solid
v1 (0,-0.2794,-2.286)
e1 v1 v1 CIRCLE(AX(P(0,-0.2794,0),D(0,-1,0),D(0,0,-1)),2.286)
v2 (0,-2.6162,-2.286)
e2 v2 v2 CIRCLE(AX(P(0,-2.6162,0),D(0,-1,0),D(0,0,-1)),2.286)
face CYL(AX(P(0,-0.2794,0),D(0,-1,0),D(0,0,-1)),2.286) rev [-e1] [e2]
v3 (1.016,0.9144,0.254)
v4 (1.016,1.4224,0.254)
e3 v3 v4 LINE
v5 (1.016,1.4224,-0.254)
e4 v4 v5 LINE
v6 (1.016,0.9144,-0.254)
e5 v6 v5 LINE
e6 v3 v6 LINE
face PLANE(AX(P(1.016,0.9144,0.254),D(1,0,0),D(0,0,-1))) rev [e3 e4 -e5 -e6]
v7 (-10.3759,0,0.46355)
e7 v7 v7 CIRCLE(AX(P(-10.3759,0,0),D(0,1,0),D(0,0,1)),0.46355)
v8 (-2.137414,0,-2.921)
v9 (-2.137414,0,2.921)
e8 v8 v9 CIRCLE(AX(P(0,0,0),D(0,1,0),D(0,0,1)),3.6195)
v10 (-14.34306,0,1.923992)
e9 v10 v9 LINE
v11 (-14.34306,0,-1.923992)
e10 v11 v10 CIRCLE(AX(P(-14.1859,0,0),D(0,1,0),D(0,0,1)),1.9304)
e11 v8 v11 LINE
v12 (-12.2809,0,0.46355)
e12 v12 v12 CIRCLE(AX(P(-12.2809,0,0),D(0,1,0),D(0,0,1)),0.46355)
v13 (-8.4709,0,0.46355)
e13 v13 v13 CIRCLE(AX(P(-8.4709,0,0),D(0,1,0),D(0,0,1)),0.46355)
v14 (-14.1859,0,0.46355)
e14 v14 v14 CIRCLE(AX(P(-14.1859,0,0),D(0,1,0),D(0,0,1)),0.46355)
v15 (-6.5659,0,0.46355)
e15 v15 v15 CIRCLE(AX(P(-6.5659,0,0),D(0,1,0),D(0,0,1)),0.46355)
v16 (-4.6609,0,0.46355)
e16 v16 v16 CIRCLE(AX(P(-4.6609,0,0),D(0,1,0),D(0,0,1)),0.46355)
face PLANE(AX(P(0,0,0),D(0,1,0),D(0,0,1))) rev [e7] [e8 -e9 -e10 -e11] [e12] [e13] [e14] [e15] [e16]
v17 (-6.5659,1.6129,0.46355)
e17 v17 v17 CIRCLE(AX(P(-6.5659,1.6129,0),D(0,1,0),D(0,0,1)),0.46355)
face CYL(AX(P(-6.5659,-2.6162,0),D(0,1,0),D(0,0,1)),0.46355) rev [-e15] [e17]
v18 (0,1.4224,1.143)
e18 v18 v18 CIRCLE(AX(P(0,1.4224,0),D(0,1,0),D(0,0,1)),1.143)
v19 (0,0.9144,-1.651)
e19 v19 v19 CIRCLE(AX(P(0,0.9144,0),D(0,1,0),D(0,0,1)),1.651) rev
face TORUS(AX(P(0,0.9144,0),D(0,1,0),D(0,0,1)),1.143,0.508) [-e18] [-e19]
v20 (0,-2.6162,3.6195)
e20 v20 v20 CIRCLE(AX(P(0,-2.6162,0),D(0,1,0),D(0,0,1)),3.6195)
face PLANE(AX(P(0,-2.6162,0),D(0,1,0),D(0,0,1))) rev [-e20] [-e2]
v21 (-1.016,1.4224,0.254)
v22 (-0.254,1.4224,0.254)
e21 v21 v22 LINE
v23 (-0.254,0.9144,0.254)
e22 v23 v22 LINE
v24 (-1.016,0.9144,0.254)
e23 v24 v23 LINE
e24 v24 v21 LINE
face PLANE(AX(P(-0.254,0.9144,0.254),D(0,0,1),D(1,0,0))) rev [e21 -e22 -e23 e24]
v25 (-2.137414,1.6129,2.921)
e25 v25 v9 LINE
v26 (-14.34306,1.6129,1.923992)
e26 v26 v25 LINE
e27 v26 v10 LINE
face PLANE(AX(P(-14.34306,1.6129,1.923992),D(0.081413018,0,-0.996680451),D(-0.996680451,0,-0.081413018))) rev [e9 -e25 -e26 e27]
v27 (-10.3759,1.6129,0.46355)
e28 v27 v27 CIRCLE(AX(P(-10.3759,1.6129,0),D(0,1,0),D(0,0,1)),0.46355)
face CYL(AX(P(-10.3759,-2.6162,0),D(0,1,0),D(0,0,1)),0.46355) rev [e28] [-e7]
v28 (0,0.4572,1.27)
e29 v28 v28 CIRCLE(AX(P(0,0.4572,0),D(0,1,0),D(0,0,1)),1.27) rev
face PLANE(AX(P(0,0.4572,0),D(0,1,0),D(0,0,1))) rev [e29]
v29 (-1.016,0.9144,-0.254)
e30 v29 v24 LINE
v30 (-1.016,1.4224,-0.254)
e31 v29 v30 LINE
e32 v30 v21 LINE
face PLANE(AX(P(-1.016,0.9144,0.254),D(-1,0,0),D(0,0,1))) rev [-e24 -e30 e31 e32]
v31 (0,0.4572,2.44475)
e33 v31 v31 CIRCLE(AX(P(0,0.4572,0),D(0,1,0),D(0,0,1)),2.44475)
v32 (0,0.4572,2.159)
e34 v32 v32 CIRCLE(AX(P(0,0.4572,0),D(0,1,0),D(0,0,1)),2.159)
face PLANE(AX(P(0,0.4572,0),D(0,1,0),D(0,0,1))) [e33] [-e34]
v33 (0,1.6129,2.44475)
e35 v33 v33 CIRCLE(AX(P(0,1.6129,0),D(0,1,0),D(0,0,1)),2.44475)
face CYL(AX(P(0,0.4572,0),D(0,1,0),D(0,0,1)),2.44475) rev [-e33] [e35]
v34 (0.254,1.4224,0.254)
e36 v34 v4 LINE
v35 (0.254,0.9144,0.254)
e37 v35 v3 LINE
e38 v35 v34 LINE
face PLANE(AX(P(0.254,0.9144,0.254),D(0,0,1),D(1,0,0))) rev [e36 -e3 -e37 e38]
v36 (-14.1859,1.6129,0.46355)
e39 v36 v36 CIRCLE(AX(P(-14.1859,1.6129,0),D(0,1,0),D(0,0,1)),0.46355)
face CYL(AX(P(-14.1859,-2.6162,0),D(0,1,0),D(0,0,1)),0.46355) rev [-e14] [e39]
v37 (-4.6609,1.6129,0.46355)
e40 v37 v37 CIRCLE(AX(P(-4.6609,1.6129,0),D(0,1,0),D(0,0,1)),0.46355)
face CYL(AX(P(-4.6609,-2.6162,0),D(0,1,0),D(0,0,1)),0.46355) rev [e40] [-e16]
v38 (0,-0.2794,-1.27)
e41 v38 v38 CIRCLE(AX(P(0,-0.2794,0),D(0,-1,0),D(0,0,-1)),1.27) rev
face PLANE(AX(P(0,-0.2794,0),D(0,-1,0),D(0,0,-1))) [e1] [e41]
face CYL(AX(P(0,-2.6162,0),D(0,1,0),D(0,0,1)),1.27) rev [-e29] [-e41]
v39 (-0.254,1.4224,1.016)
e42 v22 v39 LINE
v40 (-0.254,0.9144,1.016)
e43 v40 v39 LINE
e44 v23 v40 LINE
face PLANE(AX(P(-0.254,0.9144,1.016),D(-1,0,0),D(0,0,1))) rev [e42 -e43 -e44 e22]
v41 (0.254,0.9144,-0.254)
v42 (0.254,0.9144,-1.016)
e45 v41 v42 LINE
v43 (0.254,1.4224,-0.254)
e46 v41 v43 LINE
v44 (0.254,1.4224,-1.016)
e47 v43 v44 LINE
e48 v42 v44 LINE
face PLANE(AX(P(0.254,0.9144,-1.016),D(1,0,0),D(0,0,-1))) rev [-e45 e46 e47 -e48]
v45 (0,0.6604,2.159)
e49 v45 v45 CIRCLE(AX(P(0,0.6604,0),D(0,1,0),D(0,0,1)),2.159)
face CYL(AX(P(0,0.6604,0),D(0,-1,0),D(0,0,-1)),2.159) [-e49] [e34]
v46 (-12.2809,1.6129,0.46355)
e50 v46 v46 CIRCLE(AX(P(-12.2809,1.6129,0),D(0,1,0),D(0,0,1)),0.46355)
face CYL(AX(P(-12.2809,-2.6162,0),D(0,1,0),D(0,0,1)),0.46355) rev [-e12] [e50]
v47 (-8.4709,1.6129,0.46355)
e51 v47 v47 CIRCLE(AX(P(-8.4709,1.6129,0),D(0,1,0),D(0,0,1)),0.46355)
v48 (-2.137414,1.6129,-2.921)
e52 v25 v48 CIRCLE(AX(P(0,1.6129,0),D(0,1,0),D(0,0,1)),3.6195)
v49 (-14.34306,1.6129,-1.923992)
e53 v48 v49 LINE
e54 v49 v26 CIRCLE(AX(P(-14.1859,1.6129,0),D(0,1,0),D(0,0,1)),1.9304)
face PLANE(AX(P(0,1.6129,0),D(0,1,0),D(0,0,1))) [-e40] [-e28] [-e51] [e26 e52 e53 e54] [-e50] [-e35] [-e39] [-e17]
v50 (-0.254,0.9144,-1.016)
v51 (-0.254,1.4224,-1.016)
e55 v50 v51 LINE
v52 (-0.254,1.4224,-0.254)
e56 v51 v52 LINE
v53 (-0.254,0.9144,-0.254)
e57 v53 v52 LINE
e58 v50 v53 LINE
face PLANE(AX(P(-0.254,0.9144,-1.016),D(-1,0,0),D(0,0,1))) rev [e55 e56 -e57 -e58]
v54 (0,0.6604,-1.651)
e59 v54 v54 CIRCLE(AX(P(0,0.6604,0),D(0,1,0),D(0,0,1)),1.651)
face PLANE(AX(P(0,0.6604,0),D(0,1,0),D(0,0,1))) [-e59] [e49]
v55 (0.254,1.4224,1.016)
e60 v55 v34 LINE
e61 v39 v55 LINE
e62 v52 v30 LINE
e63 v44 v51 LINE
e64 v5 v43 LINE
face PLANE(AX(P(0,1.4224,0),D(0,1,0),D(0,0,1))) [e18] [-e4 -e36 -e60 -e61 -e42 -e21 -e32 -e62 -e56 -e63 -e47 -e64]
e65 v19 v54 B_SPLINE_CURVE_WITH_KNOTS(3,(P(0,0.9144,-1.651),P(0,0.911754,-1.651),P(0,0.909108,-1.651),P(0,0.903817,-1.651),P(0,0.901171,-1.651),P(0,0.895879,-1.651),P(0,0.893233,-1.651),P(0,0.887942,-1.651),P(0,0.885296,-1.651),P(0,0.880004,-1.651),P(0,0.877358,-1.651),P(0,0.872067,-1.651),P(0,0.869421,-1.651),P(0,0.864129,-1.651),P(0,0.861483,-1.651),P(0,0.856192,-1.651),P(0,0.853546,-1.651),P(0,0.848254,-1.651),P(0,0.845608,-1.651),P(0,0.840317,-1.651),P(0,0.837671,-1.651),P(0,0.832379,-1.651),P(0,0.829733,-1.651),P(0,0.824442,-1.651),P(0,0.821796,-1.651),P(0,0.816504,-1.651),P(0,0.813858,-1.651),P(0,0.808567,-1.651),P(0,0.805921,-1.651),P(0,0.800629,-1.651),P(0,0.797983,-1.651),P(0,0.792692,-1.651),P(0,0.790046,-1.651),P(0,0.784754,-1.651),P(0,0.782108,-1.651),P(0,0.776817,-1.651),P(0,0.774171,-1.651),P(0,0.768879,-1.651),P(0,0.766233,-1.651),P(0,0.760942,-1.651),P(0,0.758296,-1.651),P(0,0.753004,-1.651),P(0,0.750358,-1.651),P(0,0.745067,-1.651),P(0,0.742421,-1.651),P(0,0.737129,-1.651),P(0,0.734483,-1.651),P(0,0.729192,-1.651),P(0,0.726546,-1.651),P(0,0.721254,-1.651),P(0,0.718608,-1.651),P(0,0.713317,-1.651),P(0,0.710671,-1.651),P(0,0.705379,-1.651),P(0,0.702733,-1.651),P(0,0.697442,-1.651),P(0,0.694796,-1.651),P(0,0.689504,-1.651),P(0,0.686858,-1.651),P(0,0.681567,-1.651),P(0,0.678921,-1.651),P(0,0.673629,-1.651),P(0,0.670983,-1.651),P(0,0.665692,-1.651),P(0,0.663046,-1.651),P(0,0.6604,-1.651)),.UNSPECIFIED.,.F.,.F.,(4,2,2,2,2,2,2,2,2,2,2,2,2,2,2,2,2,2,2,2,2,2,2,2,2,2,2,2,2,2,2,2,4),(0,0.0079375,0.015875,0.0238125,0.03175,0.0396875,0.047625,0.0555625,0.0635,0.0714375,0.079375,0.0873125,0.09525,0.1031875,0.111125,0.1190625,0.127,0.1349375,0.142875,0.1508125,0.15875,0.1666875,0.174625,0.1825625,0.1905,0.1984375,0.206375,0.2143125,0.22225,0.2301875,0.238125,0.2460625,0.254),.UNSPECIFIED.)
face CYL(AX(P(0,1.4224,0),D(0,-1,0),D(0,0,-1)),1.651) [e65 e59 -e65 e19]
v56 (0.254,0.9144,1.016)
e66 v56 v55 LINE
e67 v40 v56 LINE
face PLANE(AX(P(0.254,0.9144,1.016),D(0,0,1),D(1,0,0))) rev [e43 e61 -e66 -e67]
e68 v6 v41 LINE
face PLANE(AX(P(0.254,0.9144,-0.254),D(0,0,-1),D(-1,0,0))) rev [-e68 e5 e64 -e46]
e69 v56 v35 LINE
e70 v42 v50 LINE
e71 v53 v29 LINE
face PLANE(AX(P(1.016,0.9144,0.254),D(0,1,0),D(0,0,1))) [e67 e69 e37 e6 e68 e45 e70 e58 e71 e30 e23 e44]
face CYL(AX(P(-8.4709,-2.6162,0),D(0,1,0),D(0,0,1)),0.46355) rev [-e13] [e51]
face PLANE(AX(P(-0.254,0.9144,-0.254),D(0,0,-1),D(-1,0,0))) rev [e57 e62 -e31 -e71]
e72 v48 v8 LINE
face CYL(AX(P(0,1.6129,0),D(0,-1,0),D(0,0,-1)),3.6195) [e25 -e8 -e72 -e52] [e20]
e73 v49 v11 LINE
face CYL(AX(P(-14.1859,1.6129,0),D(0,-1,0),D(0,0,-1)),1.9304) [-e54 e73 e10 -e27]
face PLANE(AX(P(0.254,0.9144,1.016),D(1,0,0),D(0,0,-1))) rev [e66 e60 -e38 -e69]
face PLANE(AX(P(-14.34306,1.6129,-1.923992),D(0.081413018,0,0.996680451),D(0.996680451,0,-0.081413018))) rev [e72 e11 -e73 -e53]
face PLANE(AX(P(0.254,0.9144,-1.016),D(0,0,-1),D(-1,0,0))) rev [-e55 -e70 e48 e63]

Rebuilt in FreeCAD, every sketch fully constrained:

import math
import FreeCAD as App
import Part
import Sketcher

V = App.Vector
Q = App.Units.Quantity


def edges_at(feature, points):
    """Names of the edges that pass closest to the given points."""
    edges = feature.Shape.Edges
    near = lambda p: min(range(len(edges)), key=lambda i: edges[i].distToShape(Part.Vertex(*p))[0])
    return sorted({f"Edge{near(p) + 1}" for p in points})


def add_polygon(sketch, points):
    """Adds a closed chain of lines whose ends are joined by coincident constraints."""
    first, n = sketch.GeometryCount, len(points)
    for a, b in zip(points, points[1:] + points[:1]):
        sketch.addGeometry(Part.LineSegment(App.Vector(*a, 0), App.Vector(*b, 0)), False)
    for i in range(n):
        sketch.addConstraint(Sketcher.Constraint("Coincident", first + i, 2, first + (i + 1) % n, 1))

doc = App.newDocument("Part")
body = doc.addObject("PartDesign::Body", "Body")

sketch1 = body.newObject("Sketcher::SketchObject", "Sketch")
sketch1.AttachmentSupport = (doc.getObject("XZ_Plane"), [""])
sketch1.MapMode = "FlatFace"
sketch1.addGeometry([
    Part.LineSegment(V(-2.1, -2.9, 0), V(-14.3, -1.9, 0)),
    Part.ArcOfCircle(Part.Circle(V(-14.2, 0, 0), V(0, 0, 1), 1.9), math.radians(95), math.radians(265)),
    Part.LineSegment(V(-14.3, 1.9, 0), V(-2.1, 2.9, 0)),
    Part.ArcOfCircle(Part.Circle(V(0, 0, 0), V(0, 0, 1), 3.6), math.radians(-126), math.radians(126)),
], False)
sketch1.addConstraint([
    Sketcher.Constraint("Tangent", 0, 2, 1, 2),
    Sketcher.Constraint("Tangent", 1, 1, 2, 1),
    Sketcher.Constraint("Coincident", 2, 2, 3, 2),
    Sketcher.Constraint("Coincident", 3, 1, 0, 1),
    Sketcher.Constraint("Coincident", 3, 3, -1, 1),
    Sketcher.Constraint("Symmetric", 0, 2, 1, 1, -1),
    Sketcher.Constraint("Radius", 1, Q("0.076 in")),
    Sketcher.Constraint("Radius", 3, Q("0.1425 in")),
    Sketcher.Constraint("DistanceY", 3, 1, 2, 2, Q("0.23 in")),
    Sketcher.Constraint("DistanceX", 1, 3, -1, 1, Q("0.5585 in")),
])
pad1 = body.newObject("PartDesign::Pad", "Pad")
pad1.Profile = sketch1
pad1.Length = Q("0.0635 in")
pad1.Reversed = True

sketch2 = body.newObject("Sketcher::SketchObject", "Sketch001")
sketch2.AttachmentSupport = (doc.getObject("XZ_Plane"), [""])
sketch2.MapMode = "FlatFace"
sketch2.AttachmentOffset = App.Placement(V(0, 0, -0.0635 * 25.4), App.Rotation())
sketch2.addGeometry(Part.Circle(V(0, 0, 0), V(0, 0, 1), 3.6), False)
sketch2.addConstraint([
    Sketcher.Constraint("Coincident", 0, 3, -1, 1),
    Sketcher.Constraint("Diameter", 0, Q("0.285 in")),
])
pad2 = body.newObject("PartDesign::Pad", "Pad001")
pad2.Profile = sketch2
pad2.Length = Q("0.1665 in")

sketch3 = body.newObject("Sketcher::SketchObject", "Sketch002")
sketch3.AttachmentSupport = (doc.getObject("XZ_Plane"), [""])
sketch3.MapMode = "FlatFace"
sketch3.AttachmentOffset = App.Placement(V(0, 0, -0.0635 * 25.4), App.Rotation())
sketch3.addGeometry([
    Part.Circle(V(-14.19, 0, 0), V(0, 0, 1), 0.46),
    Part.Circle(V(0, 0, 0), V(0, 0, 1), 1.27),
    Part.Circle(V(-4.66, 0, 0), V(0, 0, 1), 0.46),
    Part.Circle(V(-6.57, 0, 0), V(0, 0, 1), 0.46),
    Part.Circle(V(-8.47, 0, 0), V(0, 0, 1), 0.46),
    Part.Circle(V(-10.38, 0, 0), V(0, 0, 1), 0.46),
    Part.Circle(V(-12.28, 0, 0), V(0, 0, 1), 0.46),
], False)
sketch3.addConstraint([
    Sketcher.Constraint("Coincident", 1, 3, -1, 1),
    Sketcher.Constraint("Equal", 0, 2),
    Sketcher.Constraint("Equal", 2, 3),
    Sketcher.Constraint("Equal", 3, 4),
    Sketcher.Constraint("Equal", 4, 5),
    Sketcher.Constraint("Equal", 5, 6),
    Sketcher.Constraint("PointOnObject", 0, 3, -1),
    Sketcher.Constraint("PointOnObject", 2, 3, -1),
    Sketcher.Constraint("PointOnObject", 3, 3, -1),
    Sketcher.Constraint("PointOnObject", 4, 3, -1),
    Sketcher.Constraint("PointOnObject", 5, 3, -1),
    Sketcher.Constraint("PointOnObject", 6, 3, -1),
    Sketcher.Constraint("Diameter", 1, Q("0.1 in")),
    Sketcher.Constraint("Diameter", 0, Q("0.0365 in")),
    Sketcher.Constraint("DistanceX", 0, 3, 3, 3, Q("0.3 in")),
    Sketcher.Constraint("DistanceX", 6, 3, 2, 3, Q("0.3 in")),
    Sketcher.Constraint("DistanceX", 4, 3, 2, 3, Q("0.15 in")),
    Sketcher.Constraint("DistanceX", 5, 3, 3, 3, Q("0.15 in")),
    Sketcher.Constraint("DistanceX", 0, 3, 2, 3, Q("0.375 in")),
    Sketcher.Constraint("DistanceX", 0, 3, -1, 1, Q("0.5585 in")),
])
pocket1 = body.newObject("PartDesign::Pocket", "Pocket")
pocket1.Profile = sketch3
pocket1.Type = "ThroughAll"
pocket1.Reversed = True

sketch4 = body.newObject("Sketcher::SketchObject", "Sketch003")
sketch4.AttachmentSupport = (doc.getObject("XZ_Plane"), [""])
sketch4.MapMode = "FlatFace"
sketch4.AttachmentOffset = App.Placement(V(0, 0, -0.0635 * 25.4), App.Rotation())
sketch4.addGeometry(Part.Circle(V(0, 0, 0), V(0, 0, 1), 2.4), False)
sketch4.addConstraint([
    Sketcher.Constraint("Coincident", 0, 3, -1, 1),
    Sketcher.Constraint("Diameter", 0, Q("0.1925 in")),
])
pocket2 = body.newObject("PartDesign::Pocket", "Pocket001")
pocket2.Profile = sketch4
pocket2.Length = Q("0.0455 in")
pocket2.Reversed = True

sketch5 = body.newObject("Sketcher::SketchObject", "Sketch004")
sketch5.AttachmentSupport = (doc.getObject("XZ_Plane"), [""])
sketch5.MapMode = "FlatFace"
sketch5.AttachmentOffset = App.Placement(V(0, 0, 0.103 * 25.4), App.Rotation())
sketch5.addGeometry(Part.Circle(V(0, 0, 0), V(0, 0, 1), 2.3), False)
sketch5.addConstraint([
    Sketcher.Constraint("Coincident", 0, 3, -1, 1),
    Sketcher.Constraint("Diameter", 0, Q("0.18 in")),
])
pocket3 = body.newObject("PartDesign::Pocket", "Pocket002")
pocket3.Profile = sketch5
pocket3.Length = Q("0.092 in")
body2 = doc.addObject("PartDesign::Body", "Body001")

sketch6 = body2.newObject("Sketcher::SketchObject", "Sketch005")
sketch6.AttachmentSupport = (doc.getObject("XZ_Plane001"), [""])
sketch6.MapMode = "FlatFace"
sketch6.AttachmentOffset = App.Placement(V(0, 0, -0.018 * 25.4), App.Rotation())
sketch6.addGeometry(Part.Circle(V(0, 0, 0), V(0, 0, 1), 2.2), False)
sketch6.addConstraint([
    Sketcher.Constraint("Coincident", 0, 3, -1, 1),
    Sketcher.Constraint("Diameter", 0, Q("0.17 in")),
])
pad3 = body2.newObject("PartDesign::Pad", "Pad002")
pad3.Profile = sketch6
pad3.Length = Q("0.008 in")
pad3.Reversed = True
doc.recompute()

boolean = body.newObject("PartDesign::Boolean", "Boolean")
boolean.Type = "Fuse"
boolean.addObjects([body2])

sketch7 = body.newObject("Sketcher::SketchObject", "Sketch006")
sketch7.AttachmentSupport = (doc.getObject("XZ_Plane"), [""])
sketch7.MapMode = "FlatFace"
sketch7.AttachmentOffset = App.Placement(V(0, 0, -0.026 * 25.4), App.Rotation())
sketch7.addGeometry(Part.Circle(V(0, 0, 0), V(0, 0, 1), 1.7), False)
sketch7.addConstraint([
    Sketcher.Constraint("Coincident", 0, 3, -1, 1),
    Sketcher.Constraint("Diameter", 0, Q("0.13 in")),
])
pad4 = body.newObject("PartDesign::Pad", "Pad003")
pad4.Profile = sketch7
pad4.Length = Q("0.03 in")
pad4.Reversed = True

sketch8 = body.newObject("Sketcher::SketchObject", "Sketch007")
sketch8.AttachmentSupport = (doc.getObject("XZ_Plane"), [""])
sketch8.MapMode = "FlatFace"
sketch8.AttachmentOffset = App.Placement(V(0, 0, -0.056 * 25.4), App.Rotation())
add_polygon(sketch8, [(-0.3, 1), (0.3, 1), (0.3, 0.3), (1, 0.3), (1, -0.3), (0.3, -0.3), (0.3, -1), (-0.3, -1), (-0.3, -0.3), (-1, -0.3), (-1, 0.3), (-0.3, 0.3)])
sketch8.addConstraint([
    Sketcher.Constraint("Horizontal", 0),
    Sketcher.Constraint("Vertical", 1),
    Sketcher.Constraint("Horizontal", 2),
    Sketcher.Constraint("Vertical", 3),
    Sketcher.Constraint("Horizontal", 4),
    Sketcher.Constraint("Vertical", 5),
    Sketcher.Constraint("Horizontal", 6),
    Sketcher.Constraint("Vertical", 7),
    Sketcher.Constraint("Horizontal", 8),
    Sketcher.Constraint("Vertical", 9),
    Sketcher.Constraint("Horizontal", 10),
    Sketcher.Constraint("Vertical", 11),
    Sketcher.Constraint("Symmetric", 0, 2, 6, 2, -1, 1),
    Sketcher.Constraint("Symmetric", 2, 2, 8, 2, -1, 1),
    Sketcher.Constraint("Symmetric", 4, 2, 10, 2, -1, 1),
    Sketcher.Constraint("Symmetric", 4, 2, 7, 2, -2),
    Sketcher.Constraint("Equal", 10, 1),
    Sketcher.Constraint("Equal", 6, 3),
    Sketcher.Constraint("DistanceX", 0, 1, 0, 2, Q("0.02 in")),
    Sketcher.Constraint("DistanceX", 2, 1, 2, 2, Q("0.03 in")),
])
pocket4 = body.newObject("PartDesign::Pocket", "Pocket003")
pocket4.Profile = sketch8
pocket4.Length = Q("0.02 in")
pocket4.Reversed = True
doc.recompute()

fillet = body.newObject("PartDesign::Fillet", "Fillet")
fillet.Base = (pocket4, edges_at(pocket4, [(0, 1.422, 1.651)]))
fillet.Radius = Q("0.02 in")

doc.recompute()
